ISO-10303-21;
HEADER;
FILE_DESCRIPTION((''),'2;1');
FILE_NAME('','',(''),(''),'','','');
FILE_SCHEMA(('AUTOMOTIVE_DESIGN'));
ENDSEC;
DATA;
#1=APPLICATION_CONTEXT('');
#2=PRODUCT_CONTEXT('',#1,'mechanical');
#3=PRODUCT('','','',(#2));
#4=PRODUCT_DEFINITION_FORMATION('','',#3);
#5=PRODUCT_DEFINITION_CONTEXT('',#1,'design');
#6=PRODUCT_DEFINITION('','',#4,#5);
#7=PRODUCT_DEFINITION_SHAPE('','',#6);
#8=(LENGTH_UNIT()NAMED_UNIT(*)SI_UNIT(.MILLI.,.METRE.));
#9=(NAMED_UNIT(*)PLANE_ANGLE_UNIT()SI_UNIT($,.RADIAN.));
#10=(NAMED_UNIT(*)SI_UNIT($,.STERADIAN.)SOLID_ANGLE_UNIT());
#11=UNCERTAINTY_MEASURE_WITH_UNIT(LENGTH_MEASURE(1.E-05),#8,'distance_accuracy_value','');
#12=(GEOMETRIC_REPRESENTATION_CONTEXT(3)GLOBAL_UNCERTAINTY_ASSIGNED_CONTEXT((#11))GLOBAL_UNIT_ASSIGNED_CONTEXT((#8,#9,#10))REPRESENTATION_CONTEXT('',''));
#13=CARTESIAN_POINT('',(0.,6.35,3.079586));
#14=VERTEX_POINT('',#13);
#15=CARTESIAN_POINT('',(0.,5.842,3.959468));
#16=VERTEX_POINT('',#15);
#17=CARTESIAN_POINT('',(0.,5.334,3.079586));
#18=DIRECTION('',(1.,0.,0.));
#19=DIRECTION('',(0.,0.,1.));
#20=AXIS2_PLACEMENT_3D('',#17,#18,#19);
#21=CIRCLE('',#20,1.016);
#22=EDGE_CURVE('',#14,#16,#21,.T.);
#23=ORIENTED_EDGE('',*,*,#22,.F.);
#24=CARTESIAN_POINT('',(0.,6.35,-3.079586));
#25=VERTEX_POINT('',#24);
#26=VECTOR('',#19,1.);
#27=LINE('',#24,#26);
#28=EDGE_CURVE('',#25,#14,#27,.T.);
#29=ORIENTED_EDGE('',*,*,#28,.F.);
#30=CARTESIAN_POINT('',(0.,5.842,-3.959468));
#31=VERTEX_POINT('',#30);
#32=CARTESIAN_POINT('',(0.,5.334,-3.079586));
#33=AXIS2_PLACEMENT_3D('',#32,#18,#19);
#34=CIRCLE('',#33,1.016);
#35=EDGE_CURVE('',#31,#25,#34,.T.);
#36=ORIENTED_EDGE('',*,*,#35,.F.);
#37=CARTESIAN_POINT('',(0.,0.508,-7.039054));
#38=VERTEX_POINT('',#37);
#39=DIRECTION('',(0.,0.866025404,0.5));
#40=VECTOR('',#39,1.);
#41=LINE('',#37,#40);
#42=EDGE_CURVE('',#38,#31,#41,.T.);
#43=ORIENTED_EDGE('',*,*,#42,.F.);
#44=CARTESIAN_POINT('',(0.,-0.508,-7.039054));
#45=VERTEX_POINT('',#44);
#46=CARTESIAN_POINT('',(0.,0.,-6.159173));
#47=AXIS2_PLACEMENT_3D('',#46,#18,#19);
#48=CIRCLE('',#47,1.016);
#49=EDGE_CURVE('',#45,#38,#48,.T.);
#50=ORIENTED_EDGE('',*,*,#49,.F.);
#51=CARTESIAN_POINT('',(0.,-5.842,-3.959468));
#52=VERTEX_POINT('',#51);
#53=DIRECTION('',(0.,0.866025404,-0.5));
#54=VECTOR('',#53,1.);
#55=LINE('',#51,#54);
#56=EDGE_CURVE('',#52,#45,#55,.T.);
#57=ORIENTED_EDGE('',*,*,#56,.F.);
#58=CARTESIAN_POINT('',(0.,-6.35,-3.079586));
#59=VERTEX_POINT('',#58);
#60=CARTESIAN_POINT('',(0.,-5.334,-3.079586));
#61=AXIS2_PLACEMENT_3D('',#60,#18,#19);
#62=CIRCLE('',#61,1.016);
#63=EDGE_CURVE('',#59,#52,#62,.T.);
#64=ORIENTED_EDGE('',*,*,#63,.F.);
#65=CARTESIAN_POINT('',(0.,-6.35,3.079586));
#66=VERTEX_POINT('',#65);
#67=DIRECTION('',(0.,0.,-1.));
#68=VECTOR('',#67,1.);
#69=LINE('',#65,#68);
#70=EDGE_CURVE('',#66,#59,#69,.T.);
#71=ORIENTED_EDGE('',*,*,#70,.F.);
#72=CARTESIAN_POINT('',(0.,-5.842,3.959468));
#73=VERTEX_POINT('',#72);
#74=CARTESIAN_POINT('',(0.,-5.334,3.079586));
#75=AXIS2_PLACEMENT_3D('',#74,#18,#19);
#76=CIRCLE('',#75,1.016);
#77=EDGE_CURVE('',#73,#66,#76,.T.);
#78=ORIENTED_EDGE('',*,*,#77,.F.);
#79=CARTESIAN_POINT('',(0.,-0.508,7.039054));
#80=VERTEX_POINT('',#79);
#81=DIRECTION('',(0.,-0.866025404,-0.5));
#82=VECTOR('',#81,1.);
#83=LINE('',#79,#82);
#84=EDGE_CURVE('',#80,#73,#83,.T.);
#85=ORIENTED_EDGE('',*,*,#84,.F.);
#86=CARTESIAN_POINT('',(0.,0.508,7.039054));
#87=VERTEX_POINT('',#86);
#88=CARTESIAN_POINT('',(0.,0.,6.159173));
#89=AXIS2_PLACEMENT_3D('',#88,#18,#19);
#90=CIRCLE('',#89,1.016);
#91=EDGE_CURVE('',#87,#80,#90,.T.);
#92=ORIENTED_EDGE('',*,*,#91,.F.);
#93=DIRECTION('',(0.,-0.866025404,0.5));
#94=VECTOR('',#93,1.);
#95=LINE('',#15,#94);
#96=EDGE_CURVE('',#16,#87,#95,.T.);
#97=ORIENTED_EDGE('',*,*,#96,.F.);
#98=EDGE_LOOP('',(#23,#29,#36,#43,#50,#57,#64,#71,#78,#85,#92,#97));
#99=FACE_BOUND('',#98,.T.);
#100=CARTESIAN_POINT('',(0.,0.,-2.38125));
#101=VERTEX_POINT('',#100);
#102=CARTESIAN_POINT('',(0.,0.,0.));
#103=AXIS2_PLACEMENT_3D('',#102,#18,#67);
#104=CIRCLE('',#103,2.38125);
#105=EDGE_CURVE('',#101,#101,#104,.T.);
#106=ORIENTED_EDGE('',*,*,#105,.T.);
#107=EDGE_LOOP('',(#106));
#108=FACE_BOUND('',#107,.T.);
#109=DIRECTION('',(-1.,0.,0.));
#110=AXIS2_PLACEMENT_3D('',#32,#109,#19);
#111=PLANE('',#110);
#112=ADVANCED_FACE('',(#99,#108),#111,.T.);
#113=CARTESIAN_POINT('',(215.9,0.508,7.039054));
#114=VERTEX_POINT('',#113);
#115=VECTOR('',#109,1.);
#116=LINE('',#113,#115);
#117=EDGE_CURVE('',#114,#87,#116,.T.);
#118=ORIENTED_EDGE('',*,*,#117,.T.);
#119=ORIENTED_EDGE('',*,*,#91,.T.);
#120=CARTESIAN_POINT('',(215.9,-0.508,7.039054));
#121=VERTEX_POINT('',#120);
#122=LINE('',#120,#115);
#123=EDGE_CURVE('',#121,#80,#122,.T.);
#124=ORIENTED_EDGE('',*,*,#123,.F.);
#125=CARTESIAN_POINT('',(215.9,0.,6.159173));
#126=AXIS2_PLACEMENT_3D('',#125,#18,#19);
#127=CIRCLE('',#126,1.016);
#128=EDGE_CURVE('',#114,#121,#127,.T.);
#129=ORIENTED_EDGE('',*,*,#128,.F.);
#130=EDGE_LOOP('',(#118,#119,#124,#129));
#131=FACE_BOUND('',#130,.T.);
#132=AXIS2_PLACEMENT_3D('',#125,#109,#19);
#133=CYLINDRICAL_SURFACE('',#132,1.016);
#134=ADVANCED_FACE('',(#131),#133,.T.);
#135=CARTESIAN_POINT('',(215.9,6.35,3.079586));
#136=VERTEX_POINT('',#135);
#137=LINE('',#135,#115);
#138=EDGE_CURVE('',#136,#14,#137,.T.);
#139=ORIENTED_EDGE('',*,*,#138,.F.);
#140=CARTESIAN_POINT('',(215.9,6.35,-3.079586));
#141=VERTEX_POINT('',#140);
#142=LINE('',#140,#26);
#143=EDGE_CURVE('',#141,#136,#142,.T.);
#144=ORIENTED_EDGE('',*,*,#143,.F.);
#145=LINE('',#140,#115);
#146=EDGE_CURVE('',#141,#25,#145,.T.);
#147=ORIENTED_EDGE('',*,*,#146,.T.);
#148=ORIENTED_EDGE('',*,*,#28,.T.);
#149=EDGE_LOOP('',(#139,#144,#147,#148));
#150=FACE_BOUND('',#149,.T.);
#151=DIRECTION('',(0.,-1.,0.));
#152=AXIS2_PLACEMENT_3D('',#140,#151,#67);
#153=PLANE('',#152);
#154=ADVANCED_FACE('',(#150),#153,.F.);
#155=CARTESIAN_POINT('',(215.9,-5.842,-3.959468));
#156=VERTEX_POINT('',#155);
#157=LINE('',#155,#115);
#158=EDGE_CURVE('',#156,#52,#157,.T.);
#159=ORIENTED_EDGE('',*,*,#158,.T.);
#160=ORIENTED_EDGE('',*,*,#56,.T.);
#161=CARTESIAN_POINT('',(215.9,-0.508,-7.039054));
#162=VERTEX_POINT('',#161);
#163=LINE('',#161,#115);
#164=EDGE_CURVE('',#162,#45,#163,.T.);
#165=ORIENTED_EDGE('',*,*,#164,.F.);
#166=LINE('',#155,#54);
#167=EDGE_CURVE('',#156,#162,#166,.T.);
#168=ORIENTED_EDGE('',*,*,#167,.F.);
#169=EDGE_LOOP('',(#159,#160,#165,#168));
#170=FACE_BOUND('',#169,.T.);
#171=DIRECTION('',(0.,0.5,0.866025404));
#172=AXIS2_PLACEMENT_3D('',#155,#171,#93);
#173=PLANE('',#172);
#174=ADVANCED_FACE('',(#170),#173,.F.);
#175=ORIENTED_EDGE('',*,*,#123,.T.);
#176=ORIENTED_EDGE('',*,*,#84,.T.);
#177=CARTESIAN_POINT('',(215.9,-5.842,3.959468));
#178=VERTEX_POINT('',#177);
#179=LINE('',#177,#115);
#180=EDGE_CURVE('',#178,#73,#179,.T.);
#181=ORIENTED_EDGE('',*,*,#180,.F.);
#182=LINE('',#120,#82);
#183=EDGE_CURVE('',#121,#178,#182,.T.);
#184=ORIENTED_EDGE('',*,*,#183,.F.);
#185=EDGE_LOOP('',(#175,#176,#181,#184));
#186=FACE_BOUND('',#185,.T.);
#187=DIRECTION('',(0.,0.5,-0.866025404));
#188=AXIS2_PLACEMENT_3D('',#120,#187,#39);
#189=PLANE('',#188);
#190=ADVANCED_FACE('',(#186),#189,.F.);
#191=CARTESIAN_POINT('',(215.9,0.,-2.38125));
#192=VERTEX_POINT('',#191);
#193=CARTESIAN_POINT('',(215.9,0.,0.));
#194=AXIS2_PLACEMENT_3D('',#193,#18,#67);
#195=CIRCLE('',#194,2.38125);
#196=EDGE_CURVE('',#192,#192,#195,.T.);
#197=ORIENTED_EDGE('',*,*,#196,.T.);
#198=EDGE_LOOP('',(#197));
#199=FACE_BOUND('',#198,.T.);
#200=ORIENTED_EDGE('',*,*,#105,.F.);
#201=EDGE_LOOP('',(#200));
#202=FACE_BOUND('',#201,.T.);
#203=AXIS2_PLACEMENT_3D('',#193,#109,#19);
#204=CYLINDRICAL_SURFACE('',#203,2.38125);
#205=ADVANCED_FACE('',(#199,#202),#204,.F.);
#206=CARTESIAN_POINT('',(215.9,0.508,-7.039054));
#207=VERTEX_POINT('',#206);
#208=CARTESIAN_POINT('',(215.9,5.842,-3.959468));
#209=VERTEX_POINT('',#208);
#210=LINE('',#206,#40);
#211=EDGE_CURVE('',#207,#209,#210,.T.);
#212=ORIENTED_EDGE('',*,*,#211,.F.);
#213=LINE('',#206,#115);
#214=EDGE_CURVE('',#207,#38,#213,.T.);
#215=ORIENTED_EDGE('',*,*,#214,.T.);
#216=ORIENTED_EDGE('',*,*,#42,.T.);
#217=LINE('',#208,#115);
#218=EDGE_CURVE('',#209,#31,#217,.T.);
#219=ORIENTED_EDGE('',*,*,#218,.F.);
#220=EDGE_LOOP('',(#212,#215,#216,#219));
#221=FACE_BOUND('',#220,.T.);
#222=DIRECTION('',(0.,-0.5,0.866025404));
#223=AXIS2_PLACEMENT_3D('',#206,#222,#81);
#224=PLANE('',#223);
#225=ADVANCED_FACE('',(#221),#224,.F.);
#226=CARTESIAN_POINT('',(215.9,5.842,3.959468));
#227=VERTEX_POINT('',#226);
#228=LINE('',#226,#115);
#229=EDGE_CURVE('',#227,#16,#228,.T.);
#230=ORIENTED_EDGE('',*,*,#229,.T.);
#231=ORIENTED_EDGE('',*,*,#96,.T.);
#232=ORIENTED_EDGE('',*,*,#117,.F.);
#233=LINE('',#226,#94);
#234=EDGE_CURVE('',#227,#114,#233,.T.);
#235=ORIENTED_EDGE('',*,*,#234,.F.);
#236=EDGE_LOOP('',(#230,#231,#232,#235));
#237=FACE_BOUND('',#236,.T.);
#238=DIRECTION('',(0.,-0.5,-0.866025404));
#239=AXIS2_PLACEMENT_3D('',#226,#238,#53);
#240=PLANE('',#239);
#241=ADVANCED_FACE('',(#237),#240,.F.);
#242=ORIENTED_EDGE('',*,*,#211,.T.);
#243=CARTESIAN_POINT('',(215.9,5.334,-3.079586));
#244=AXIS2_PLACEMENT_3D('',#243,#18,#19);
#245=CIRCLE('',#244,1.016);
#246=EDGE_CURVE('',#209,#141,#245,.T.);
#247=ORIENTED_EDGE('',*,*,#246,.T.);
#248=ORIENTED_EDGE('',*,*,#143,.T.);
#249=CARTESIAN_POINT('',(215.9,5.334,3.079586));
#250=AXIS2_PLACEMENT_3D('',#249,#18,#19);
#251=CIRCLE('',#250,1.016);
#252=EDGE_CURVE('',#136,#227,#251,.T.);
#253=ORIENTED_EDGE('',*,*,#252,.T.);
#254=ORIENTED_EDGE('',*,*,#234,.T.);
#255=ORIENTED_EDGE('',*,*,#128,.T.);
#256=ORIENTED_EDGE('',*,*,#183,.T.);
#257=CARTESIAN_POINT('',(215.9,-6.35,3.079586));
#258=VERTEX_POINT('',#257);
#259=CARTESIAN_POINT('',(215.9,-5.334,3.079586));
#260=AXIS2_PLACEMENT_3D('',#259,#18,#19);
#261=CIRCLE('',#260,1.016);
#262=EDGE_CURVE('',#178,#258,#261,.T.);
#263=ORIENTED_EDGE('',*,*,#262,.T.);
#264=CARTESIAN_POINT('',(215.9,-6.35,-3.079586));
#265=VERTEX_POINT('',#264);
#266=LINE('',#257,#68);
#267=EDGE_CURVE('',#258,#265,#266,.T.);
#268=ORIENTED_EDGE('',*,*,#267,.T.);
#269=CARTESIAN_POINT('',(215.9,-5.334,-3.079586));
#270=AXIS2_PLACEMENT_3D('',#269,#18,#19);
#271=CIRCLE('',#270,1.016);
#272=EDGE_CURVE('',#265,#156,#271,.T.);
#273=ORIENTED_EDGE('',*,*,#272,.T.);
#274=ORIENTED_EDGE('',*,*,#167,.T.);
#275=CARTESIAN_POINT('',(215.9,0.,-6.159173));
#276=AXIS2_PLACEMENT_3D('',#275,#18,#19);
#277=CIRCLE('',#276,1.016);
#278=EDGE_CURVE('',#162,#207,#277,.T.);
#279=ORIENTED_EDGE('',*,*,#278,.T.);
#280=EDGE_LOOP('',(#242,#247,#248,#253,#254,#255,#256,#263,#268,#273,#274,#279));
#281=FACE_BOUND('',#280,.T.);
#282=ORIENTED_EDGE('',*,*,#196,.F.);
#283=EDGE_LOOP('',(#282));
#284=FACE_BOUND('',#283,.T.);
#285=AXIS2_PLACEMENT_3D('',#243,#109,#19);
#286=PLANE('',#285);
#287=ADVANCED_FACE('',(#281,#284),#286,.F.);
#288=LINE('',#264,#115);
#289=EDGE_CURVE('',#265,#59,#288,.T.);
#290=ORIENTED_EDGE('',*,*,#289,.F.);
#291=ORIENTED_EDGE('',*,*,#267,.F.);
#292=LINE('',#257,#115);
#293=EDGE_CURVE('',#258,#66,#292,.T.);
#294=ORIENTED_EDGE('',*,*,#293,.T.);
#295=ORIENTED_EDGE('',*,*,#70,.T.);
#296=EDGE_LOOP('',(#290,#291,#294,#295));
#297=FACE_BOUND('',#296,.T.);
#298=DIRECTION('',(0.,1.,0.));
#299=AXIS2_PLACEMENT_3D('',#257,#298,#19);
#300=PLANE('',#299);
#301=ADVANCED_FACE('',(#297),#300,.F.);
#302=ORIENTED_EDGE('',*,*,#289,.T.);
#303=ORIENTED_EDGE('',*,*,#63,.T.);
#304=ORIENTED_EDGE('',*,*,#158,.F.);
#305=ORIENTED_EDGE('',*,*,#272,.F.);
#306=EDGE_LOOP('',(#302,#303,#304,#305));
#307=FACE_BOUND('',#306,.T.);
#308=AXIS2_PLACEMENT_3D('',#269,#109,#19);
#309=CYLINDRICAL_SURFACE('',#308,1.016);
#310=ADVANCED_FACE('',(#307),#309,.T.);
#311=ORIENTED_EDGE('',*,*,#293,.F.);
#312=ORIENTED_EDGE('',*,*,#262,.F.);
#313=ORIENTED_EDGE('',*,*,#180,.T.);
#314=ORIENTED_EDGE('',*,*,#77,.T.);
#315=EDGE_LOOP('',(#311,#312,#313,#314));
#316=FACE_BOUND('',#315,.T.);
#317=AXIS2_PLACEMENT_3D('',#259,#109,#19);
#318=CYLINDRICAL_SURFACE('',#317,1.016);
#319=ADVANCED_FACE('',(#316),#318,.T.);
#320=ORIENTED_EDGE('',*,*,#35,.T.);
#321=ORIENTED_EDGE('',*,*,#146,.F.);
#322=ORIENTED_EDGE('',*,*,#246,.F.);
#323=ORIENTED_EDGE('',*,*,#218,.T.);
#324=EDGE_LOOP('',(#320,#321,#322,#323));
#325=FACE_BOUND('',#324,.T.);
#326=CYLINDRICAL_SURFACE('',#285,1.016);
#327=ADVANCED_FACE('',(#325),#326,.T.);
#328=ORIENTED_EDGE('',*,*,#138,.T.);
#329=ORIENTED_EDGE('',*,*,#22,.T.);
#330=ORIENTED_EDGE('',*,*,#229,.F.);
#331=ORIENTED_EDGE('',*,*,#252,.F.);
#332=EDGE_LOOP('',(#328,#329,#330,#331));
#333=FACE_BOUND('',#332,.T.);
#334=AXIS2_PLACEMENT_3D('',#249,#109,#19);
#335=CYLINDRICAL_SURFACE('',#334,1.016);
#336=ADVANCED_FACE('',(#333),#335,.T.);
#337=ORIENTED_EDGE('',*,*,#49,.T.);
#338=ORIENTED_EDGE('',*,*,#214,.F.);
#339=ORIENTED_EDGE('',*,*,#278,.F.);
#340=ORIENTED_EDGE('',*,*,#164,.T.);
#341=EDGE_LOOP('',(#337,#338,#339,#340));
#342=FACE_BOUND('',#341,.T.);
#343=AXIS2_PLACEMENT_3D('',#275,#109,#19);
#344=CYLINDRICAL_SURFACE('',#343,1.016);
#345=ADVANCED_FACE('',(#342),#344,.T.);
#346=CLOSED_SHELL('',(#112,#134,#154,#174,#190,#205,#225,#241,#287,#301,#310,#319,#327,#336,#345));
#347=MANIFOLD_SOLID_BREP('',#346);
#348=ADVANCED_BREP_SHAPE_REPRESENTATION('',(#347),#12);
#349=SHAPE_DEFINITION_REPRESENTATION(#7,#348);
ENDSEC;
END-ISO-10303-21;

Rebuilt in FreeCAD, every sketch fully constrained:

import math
import FreeCAD as App
import Part
import Sketcher
Q = App.Units.Quantity

doc = App.newDocument("Part")
params = doc.addObject("Spreadsheet::Sheet", "Params")
for row, (alias, value) in enumerate([
    ("sketch1_radius", "0.04 in"),
    ("sketch1_diameter", "0.1875 in"),
    ("pad1_length", "8.5 in"),
], start=1):
    params.set(f"A{row}", alias)
    params.set(f"B{row}", "=" + value)
    params.setAlias(f"B{row}", alias)

body = doc.addObject("PartDesign::Body", "Body")

# Sketch on YZ plane
sketch1 = body.newObject("Sketcher::SketchObject", "Sketch")
sketch1.AttachmentSupport = (doc.getObject("YZ_Plane"), [""])
sketch1.MapMode = "FlatFace"
sketch1.addGeometry(Part.LineSegment(App.Vector(0.5, -7, 0), App.Vector(5.8, -4, 0)), False)
sketch1.addGeometry(Part.ArcOfCircle(Part.Circle(App.Vector(5.3, -3.1, 0), App.Vector(0, 0, 1), 1), math.radians(-60), math.radians(0)), False)
sketch1.addGeometry(Part.LineSegment(App.Vector(6.3, -3.1, 0), App.Vector(6.3, 3.1, 0)), False)
sketch1.addGeometry(Part.ArcOfCircle(Part.Circle(App.Vector(5.3, 3.1, 0), App.Vector(0, 0, 1), 1), math.radians(0), math.radians(60)), False)
sketch1.addGeometry(Part.LineSegment(App.Vector(5.8, 4, 0), App.Vector(0.5, 7, 0)), False)
sketch1.addGeometry(Part.ArcOfCircle(Part.Circle(App.Vector(0, 6.2, 0), App.Vector(0, 0, 1), 1), math.radians(60), math.radians(120)), False)
sketch1.addGeometry(Part.LineSegment(App.Vector(-0.5, 7, 0), App.Vector(-5.8, 4, 0)), False)
sketch1.addGeometry(Part.ArcOfCircle(Part.Circle(App.Vector(-5.3, 3.1, 0), App.Vector(0, 0, 1), 1), math.radians(120), math.radians(180)), False)
sketch1.addGeometry(Part.LineSegment(App.Vector(-6.3, 3.1, 0), App.Vector(-6.3, -3.1, 0)), False)
sketch1.addGeometry(Part.ArcOfCircle(Part.Circle(App.Vector(-5.3, -3.1, 0), App.Vector(0, 0, 1), 1), math.radians(-180), math.radians(-120)), False)
sketch1.addGeometry(Part.LineSegment(App.Vector(-5.8, -4, 0), App.Vector(-0.5, -7, 0)), False)
sketch1.addGeometry(Part.ArcOfCircle(Part.Circle(App.Vector(0, -6.2, 0), App.Vector(0, 0, 1), 1), math.radians(-120), math.radians(-60)), False)
sketch1.addGeometry(Part.Circle(App.Vector(0, 0, 0), App.Vector(0, 0, 1), 2.4), False)
sketch1.addConstraint(Sketcher.Constraint("Tangent", 0, 2, 1, 1))
sketch1.addConstraint(Sketcher.Constraint("Tangent", 1, 2, 2, 1))
sketch1.addConstraint(Sketcher.Constraint("Tangent", 2, 2, 3, 1))
sketch1.addConstraint(Sketcher.Constraint("Tangent", 3, 2, 4, 1))
sketch1.addConstraint(Sketcher.Constraint("Tangent", 4, 2, 5, 1))
sketch1.addConstraint(Sketcher.Constraint("Tangent", 5, 2, 6, 1))
sketch1.addConstraint(Sketcher.Constraint("Tangent", 6, 2, 7, 1))
sketch1.addConstraint(Sketcher.Constraint("Tangent", 7, 2, 8, 1))
sketch1.addConstraint(Sketcher.Constraint("Tangent", 8, 2, 9, 1))
sketch1.addConstraint(Sketcher.Constraint("Tangent", 9, 2, 10, 1))
sketch1.addConstraint(Sketcher.Constraint("Tangent", 10, 2, 11, 1))
sketch1.addConstraint(Sketcher.Constraint("Tangent", 11, 2, 0, 1))
sketch1.addConstraint(Sketcher.Constraint("Vertical", 2))
sketch1.addConstraint(Sketcher.Constraint("Vertical", 8))
sketch1.addConstraint(Sketcher.Constraint("Coincident", 12, 3, -1, 1))
sketch1.addConstraint(Sketcher.Constraint("Equal", 1, 3))
sketch1.addConstraint(Sketcher.Constraint("Equal", 3, 5))
sketch1.addConstraint(Sketcher.Constraint("Equal", 5, 7))
sketch1.addConstraint(Sketcher.Constraint("Equal", 7, 9))
sketch1.addConstraint(Sketcher.Constraint("Equal", 9, 11))
sketch1.addConstraint(Sketcher.Constraint("Symmetric", 1, 3, 7, 3, -1, 1))
sketch1.addConstraint(Sketcher.Constraint("Symmetric", 5, 3, 11, 3, -1, 1))
sketch1.addConstraint(Sketcher.Constraint("Symmetric", 4, 2, 5, 2, -2))
sketch1.addConstraint(Sketcher.Constraint("Parallel", 4, 10))
sketch1.addConstraint(Sketcher.Constraint("Radius", 1, Q("0.04 in")))
sketch1.addConstraint(Sketcher.Constraint("Diameter", 12, Q("0.1875 in")))
sketch1.addConstraint(Sketcher.Constraint("Angle", 0, Q("30 deg")))
sketch1.addConstraint(Sketcher.Constraint("DistanceX", -1, 1, 1, 3, Q("0.21 in")))
sketch1.addConstraint(Sketcher.Constraint("DistanceY", 2, 1, 2, 2, 6.159173))
sketch1.setExpression("Constraints[24]", "Params.sketch1_radius")
sketch1.setExpression("Constraints[25]", "Params.sketch1_diameter")
pad1 = body.newObject("PartDesign::Pad", "Pad")
pad1.Profile = sketch1
pad1.setExpression("Length", "Params.pad1_length")

doc.recompute()
